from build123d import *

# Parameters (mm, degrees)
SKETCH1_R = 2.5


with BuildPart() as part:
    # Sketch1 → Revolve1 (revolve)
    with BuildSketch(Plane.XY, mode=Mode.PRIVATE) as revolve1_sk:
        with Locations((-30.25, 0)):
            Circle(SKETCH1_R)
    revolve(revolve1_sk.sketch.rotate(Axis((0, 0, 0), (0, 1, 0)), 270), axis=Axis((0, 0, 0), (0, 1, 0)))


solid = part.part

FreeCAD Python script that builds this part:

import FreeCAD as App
import Part
import Sketcher
from FreeCAD import Vector

doc = App.newDocument("Part")
params = doc.addObject("Spreadsheet::Sheet", "Params")
for row, (alias, value) in enumerate([
    ("sketch1_diameter", "5 mm"),
    ("revolution_angle", "360 deg"),
], start=1):
    params.set(f"A{row}", alias)
    params.set(f"B{row}", "=" + value)
    params.setAlias(f"B{row}", alias)

body = doc.addObject("PartDesign::Body", "Body")

# Sketch on XY plane
sketch1 = body.newObject("Sketcher::SketchObject", "Sketch")
sketch1.AttachmentSupport = (doc.getObject("XY_Plane"), [""])
sketch1.MapMode = "FlatFace"
sketch1.addGeometry(Part.Circle(Vector(-30.2, 0, 0), Vector(0, 0, 1), 2.5), False)
sketch1.addConstraint([
    Sketcher.Constraint("PointOnObject", 0, 3, -1),
    Sketcher.Constraint("Diameter", 0, 5.0),
    Sketcher.Constraint("DistanceX", 0, 3, -1, 1, 30.25),
])
sketch1.setExpression("Constraints[1]", "Params.sketch1_diameter")
revolution = body.newObject("PartDesign::Revolution", "Revolution")
revolution.Profile = sketch1
revolution.ReferenceAxis = (sketch1, ["V_Axis"])
revolution.setExpression("Angle", "Params.revolution_angle")

doc.recompute()
